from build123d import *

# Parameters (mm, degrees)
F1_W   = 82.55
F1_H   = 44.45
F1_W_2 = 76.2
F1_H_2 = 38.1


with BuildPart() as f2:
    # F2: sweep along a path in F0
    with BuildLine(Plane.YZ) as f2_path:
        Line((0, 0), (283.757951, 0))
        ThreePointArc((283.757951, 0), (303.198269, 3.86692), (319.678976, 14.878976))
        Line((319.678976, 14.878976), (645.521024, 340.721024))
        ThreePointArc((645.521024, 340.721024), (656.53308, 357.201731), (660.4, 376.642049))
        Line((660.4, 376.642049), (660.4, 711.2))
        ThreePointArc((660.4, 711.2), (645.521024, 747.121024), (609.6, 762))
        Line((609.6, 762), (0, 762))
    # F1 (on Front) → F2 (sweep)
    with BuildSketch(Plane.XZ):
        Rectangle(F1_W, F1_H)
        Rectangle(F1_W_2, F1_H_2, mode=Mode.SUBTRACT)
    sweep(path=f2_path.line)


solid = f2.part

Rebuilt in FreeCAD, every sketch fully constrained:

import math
import FreeCAD as App
import Part
import Sketcher
from FreeCAD import Vector
Q = App.Units.Quantity


def add_polygon(sketch, points):
    """Adds a closed chain of lines whose ends are joined by coincident constraints."""
    first, n = sketch.GeometryCount, len(points)
    for a, b in zip(points, points[1:] + points[:1]):
        sketch.addGeometry(Part.LineSegment(App.Vector(*a, 0), App.Vector(*b, 0)), False)
    for i in range(n):
        sketch.addConstraint(Sketcher.Constraint("Coincident", first + i, 2, first + (i + 1) % n, 1))

doc = App.newDocument("Part")
body = doc.addObject("PartDesign::Body", "Body")

sketch1 = doc.addObject("Sketcher::SketchObject", "Sketch")
body.addObject(sketch1)
sketch1.AttachmentSupport = (doc.XZ_Plane, [""])
sketch1.MapMode = "FlatFace"
add_polygon(sketch1, [(-41.275, 22.225), (-41.275, -22.225), (41.275, -22.225), (41.275, 22.225)])
add_polygon(sketch1, [(38.1, -19.05), (-38.1, -19.05), (-38.1, 19.05), (38.1, 19.05)])
sketch1.addConstraint(Sketcher.Constraint("Vertical", 0))
sketch1.addConstraint(Sketcher.Constraint("Horizontal", 1))
sketch1.addConstraint(Sketcher.Constraint("Vertical", 2))
sketch1.addConstraint(Sketcher.Constraint("Horizontal", 3))
sketch1.addConstraint(Sketcher.Constraint("Horizontal", 4))
sketch1.addConstraint(Sketcher.Constraint("Vertical", 5))
sketch1.addConstraint(Sketcher.Constraint("Horizontal", 6))
sketch1.addConstraint(Sketcher.Constraint("Vertical", 7))
sketch1.addConstraint(Sketcher.Constraint("Symmetric", 0, 2, 2, 2, -1, 1))
sketch1.addConstraint(Sketcher.Constraint("Symmetric", 4, 2, 6, 2, -1, 1))
sketch1.addConstraint(Sketcher.Constraint("DistanceX", 4, 2, 4, 1, Q("3 in")))
sketch1.addConstraint(Sketcher.Constraint("DistanceY", 5, 1, 5, 2, Q("1.5 in")))
sketch1.addConstraint(Sketcher.Constraint("DistanceX", 1, 1, 1, 2, Q("3.25 in")))
sketch1.addConstraint(Sketcher.Constraint("DistanceY", 0, 2, 0, 1, Q("1.75 in")))

sketch2 = doc.addObject("Sketcher::SketchObject", "Sketch001")
body.addObject(sketch2)
sketch2.AttachmentSupport = (doc.YZ_Plane, [""])
sketch2.MapMode = "FlatFace"
sketch2.addGeometry(Part.LineSegment(Vector(0, 0, 0), Vector(283.757951, 0, 0)), False)
sketch2.addGeometry(Part.ArcOfCircle(Part.Circle(Vector(283.757949, 50.800005, 0), Vector(0, 0, 1), 50.800005), math.radians(-89.999998), math.radians(-45.000001)), False)
sketch2.addGeometry(Part.LineSegment(Vector(319.678976, 14.878976, 0), Vector(645.521024, 340.721024, 0)), False)
sketch2.addGeometry(Part.ArcOfCircle(Part.Circle(Vector(609.599995, 376.642051, 0), Vector(0, 0, 1), 50.800005), math.radians(-44.999999), math.radians(-0.000002)), False)
sketch2.addGeometry(Part.LineSegment(Vector(660.4, 376.642049, 0), Vector(660.4, 711.2, 0)), False)
sketch2.addGeometry(Part.ArcOfCircle(Part.Circle(Vector(609.599998, 711.199998, 0), Vector(0, 0, 1), 50.800002), math.radians(0.000002), math.radians(89.999998)), False)
sketch2.addGeometry(Part.LineSegment(Vector(609.6, 762, 0), Vector(0, 762, 0)), False)
sketch2.addConstraint(Sketcher.Constraint("Tangent", 0, 2, 1, 1))
sketch2.addConstraint(Sketcher.Constraint("Tangent", 1, 2, 2, 1))
sketch2.addConstraint(Sketcher.Constraint("Tangent", 2, 2, 3, 1))
sketch2.addConstraint(Sketcher.Constraint("Tangent", 3, 2, 4, 1))
sketch2.addConstraint(Sketcher.Constraint("Tangent", 4, 2, 5, 1))
sketch2.addConstraint(Sketcher.Constraint("Tangent", 5, 2, 6, 1))
sketch2.addConstraint(Sketcher.Constraint("Horizontal", 0))
sketch2.addConstraint(Sketcher.Constraint("Vertical", 4))
sketch2.addConstraint(Sketcher.Constraint("Horizontal", 6))
sketch2.addConstraint(Sketcher.Constraint("Coincident", 0, 1, -1, 1))
sketch2.addConstraint(Sketcher.Constraint("Equal", 1, 3))
sketch2.addConstraint(Sketcher.Constraint("PointOnObject", 6, 2, -2))
sketch2.addConstraint(Sketcher.Constraint("Radius", 1, Q("2.0000002 in")))
sketch2.addConstraint(Sketcher.Constraint("Radius", 5, Q("2.0000001 in")))
sketch2.addConstraint(Sketcher.Constraint("DistanceX", 6, 2, 6, 1, Q("24 in")))
sketch2.addConstraint(Sketcher.Constraint("DistanceY", -1, 1, 5, 3, Q("27.9999999 in")))
sketch2.addConstraint(Sketcher.Constraint("Angle", 2, Q("45 deg")))
sketch2.addConstraint(Sketcher.Constraint("DistanceX", 0, 1, 0, 2, 283.757951))
doc.recompute()

additivepipe = doc.addObject("PartDesign::AdditivePipe", "AdditivePipe")
body.addObject(additivepipe)
additivepipe.Profile = sketch1
additivepipe.Spine = (sketch2, ["Edge1", "Edge2", "Edge3", "Edge4", "Edge5", "Edge6", "Edge7"])

doc.recompute()
